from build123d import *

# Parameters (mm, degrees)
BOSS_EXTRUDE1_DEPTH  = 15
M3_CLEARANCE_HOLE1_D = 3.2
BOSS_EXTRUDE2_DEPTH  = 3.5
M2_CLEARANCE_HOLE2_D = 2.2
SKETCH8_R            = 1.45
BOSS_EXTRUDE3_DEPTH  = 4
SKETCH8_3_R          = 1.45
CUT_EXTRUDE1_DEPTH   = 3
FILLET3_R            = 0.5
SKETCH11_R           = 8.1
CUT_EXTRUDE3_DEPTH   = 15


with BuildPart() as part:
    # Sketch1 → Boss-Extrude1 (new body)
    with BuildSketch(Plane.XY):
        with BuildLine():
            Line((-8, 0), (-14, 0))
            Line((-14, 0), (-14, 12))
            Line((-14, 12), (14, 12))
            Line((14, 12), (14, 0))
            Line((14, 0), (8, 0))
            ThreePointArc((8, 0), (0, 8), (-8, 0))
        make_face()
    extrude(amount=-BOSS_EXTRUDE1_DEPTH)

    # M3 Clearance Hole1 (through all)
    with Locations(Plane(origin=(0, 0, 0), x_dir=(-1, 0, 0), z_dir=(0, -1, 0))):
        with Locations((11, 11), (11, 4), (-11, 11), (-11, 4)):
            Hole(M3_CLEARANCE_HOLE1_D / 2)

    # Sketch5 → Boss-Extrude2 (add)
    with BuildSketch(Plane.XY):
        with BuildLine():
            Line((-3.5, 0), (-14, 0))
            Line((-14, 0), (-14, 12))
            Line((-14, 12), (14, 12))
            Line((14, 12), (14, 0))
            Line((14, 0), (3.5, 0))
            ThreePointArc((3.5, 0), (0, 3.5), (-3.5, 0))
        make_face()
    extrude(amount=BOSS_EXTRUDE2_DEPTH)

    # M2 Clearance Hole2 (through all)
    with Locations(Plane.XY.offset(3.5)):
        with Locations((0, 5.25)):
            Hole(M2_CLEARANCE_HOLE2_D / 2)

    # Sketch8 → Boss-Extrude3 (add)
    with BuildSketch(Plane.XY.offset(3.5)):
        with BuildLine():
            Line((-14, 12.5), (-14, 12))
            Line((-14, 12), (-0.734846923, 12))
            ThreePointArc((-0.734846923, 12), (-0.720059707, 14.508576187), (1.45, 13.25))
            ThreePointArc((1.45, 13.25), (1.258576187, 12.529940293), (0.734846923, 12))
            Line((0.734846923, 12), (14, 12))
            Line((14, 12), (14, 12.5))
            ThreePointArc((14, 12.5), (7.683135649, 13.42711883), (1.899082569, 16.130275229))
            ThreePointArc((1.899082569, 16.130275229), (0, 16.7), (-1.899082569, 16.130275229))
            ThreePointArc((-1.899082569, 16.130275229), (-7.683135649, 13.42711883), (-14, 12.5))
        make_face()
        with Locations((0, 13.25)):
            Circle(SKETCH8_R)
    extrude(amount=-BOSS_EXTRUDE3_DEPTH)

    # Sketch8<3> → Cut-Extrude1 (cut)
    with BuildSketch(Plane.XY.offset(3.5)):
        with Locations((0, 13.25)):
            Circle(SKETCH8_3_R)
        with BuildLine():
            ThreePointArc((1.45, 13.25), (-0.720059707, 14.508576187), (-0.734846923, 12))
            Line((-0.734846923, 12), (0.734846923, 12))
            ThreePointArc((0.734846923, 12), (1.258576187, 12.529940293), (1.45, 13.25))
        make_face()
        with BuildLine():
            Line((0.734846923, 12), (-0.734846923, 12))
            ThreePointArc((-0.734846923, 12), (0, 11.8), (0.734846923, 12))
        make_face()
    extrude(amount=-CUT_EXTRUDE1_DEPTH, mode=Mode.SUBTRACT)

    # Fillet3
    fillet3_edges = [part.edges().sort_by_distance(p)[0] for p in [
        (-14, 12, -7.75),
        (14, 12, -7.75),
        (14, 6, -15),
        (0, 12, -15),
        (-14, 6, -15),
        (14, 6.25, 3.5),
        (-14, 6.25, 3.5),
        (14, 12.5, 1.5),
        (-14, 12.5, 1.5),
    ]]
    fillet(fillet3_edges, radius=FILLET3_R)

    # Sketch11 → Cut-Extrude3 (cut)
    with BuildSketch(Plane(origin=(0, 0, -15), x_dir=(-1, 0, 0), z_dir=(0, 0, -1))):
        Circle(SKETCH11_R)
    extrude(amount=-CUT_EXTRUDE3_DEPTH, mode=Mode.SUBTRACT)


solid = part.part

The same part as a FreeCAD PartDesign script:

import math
import FreeCAD as App
import Part
import Sketcher
from FreeCAD import Vector
Q = App.Units.Quantity


def edges_at(feature, points):
    """Names of the edges that pass closest to the given points."""
    edges = feature.Shape.Edges
    near = lambda p: min(range(len(edges)), key=lambda i: edges[i].distToShape(Part.Vertex(*p))[0])
    return sorted({f"Edge{near(p) + 1}" for p in points})

doc = App.newDocument("Part")
params = doc.addObject("Spreadsheet::Sheet", "Params")
for row, (alias, value) in enumerate([
    ("sketch1_radius", "8 mm"),
    ("sketch1_width", "6 mm"),
    ("sketch1_height", "12 mm"),
    ("pad1_length", "15 mm"),
    ("sketch2_diameter", "3.2 mm"),
    ("hole_diameter", "3.2 mm"),
    ("sketch3_radius", "3.5 mm"),
    ("sketch3_width", "28 mm"),
    ("sketch3_height", "12 mm"),
    ("pad2_length", "3.5 mm"),
    ("sketch4_diameter", "2.2 mm"),
    ("hole2_diameter", "2.2 mm"),
    ("sketch5_radius", "1.45 mm"),
    ("sketch5_radius2", "3.45 mm"),
    ("sketch5_height", "0.5 mm"),
    ("pad3_length", "4 mm"),
    ("sketch6_radius", "1.45 mm"),
    ("pocket1_length", "3 mm"),
    ("fillet_radius", "0.5 mm"),
    ("sketch7_diameter", "16.2 mm"),
    ("pocket2_length", "15 mm"),
], start=1):
    params.set(f"A{row}", alias)
    params.set(f"B{row}", "=" + value)
    params.setAlias(f"B{row}", alias)

body = doc.addObject("PartDesign::Body", "Body")

sketch1 = body.newObject("Sketcher::SketchObject", "Sketch")
sketch1.AttachmentSupport = (doc.getObject("XY_Plane"), [""])
sketch1.MapMode = "FlatFace"
sketch1.addGeometry(Part.LineSegment(Vector(-14, 0, 0), Vector(-8, 0, 0)), False)
sketch1.addGeometry(Part.ArcOfCircle(Part.Circle(Vector(0, 0, 0), Vector(0, 0, 1), 8), math.radians(0), math.radians(180)), False)
sketch1.addGeometry(Part.LineSegment(Vector(8, 0, 0), Vector(14, 0, 0)), False)
sketch1.addGeometry(Part.LineSegment(Vector(14, 0, 0), Vector(14, 12, 0)), False)
sketch1.addGeometry(Part.LineSegment(Vector(14, 12, 0), Vector(-14, 12, 0)), False)
sketch1.addGeometry(Part.LineSegment(Vector(-14, 12, 0), Vector(-14, 0, 0)), False)
sketch1.addConstraint(Sketcher.Constraint("Coincident", 0, 2, 1, 2))
sketch1.addConstraint(Sketcher.Constraint("Coincident", 1, 1, 2, 1))
sketch1.addConstraint(Sketcher.Constraint("Coincident", 2, 2, 3, 1))
sketch1.addConstraint(Sketcher.Constraint("Coincident", 3, 2, 4, 1))
sketch1.addConstraint(Sketcher.Constraint("Coincident", 4, 2, 5, 1))
sketch1.addConstraint(Sketcher.Constraint("Coincident", 5, 2, 0, 1))
sketch1.addConstraint(Sketcher.Constraint("Horizontal", 0))
sketch1.addConstraint(Sketcher.Constraint("Horizontal", 2))
sketch1.addConstraint(Sketcher.Constraint("Vertical", 3))
sketch1.addConstraint(Sketcher.Constraint("Horizontal", 4))
sketch1.addConstraint(Sketcher.Constraint("Vertical", 5))
sketch1.addConstraint(Sketcher.Constraint("Coincident", 1, 3, -1, 1))
sketch1.addConstraint(Sketcher.Constraint("Symmetric", 2, 2, 5, 2, -1, 1))
sketch1.addConstraint(Sketcher.Constraint("PointOnObject", 0, 2, -1))
sketch1.addConstraint(Sketcher.Constraint("Radius", 1, Q("8 mm")))
sketch1.addConstraint(Sketcher.Constraint("DistanceX", 0, 1, 0, 2, Q("6 mm")))
sketch1.addConstraint(Sketcher.Constraint("DistanceY", 3, 1, 3, 2, Q("12 mm")))
sketch1.setExpression("Constraints[14]", "Params.sketch1_radius")
sketch1.setExpression("Constraints[15]", "Params.sketch1_width")
sketch1.setExpression("Constraints[16]", "Params.sketch1_height")
pad1 = body.newObject("PartDesign::Pad", "Pad")
pad1.Profile = sketch1
pad1.setExpression("Length", "Params.pad1_length")
pad1.Reversed = True

sketch2 = body.newObject("Sketcher::SketchObject", "Sketch001")
sketch2.AttachmentSupport = (doc.getObject("XZ_Plane"), [""])
sketch2.MapMode = "FlatFace"
sketch2.addGeometry(Part.Circle(Vector(-11, -11, 0), Vector(0, 0, 1), 1.6), False)
sketch2.addGeometry(Part.Circle(Vector(-11, -4, 0), Vector(0, 0, 1), 1.6), False)
sketch2.addGeometry(Part.Circle(Vector(11, -11, 0), Vector(0, 0, 1), 1.6), False)
sketch2.addGeometry(Part.Circle(Vector(11, -4, 0), Vector(0, 0, 1), 1.6), False)
sketch2.addConstraint(Sketcher.Constraint("Equal", 0, 1))
sketch2.addConstraint(Sketcher.Constraint("Equal", 1, 2))
sketch2.addConstraint(Sketcher.Constraint("Equal", 2, 3))
sketch2.addConstraint(Sketcher.Constraint("Symmetric", 0, 3, 2, 3, -2))
sketch2.addConstraint(Sketcher.Constraint("Symmetric", 1, 3, 3, 3, -2))
sketch2.addConstraint(Sketcher.Constraint("Vertical", 0, 3, 1, 3))
sketch2.addConstraint(Sketcher.Constraint("Diameter", 0, Q("3.2 mm")))
sketch2.addConstraint(Sketcher.Constraint("DistanceX", 0, 3, -1, 1, Q("11 mm")))
sketch2.addConstraint(Sketcher.Constraint("DistanceY", 0, 3, -1, 1, Q("11 mm")))
sketch2.addConstraint(Sketcher.Constraint("DistanceY", 1, 3, -1, 1, Q("4 mm")))
sketch2.setExpression("Constraints[6]", "Params.sketch2_diameter")
doc.recompute()
hole = body.newObject("PartDesign::Hole", "Hole")
hole.Profile = sketch2
hole.ThreadType = "None"
hole.setExpression("Diameter", "Params.hole_diameter")
hole.DepthType = "ThroughAll"

sketch3 = body.newObject("Sketcher::SketchObject", "Sketch002")
sketch3.AttachmentSupport = (doc.getObject("XY_Plane"), [""])
sketch3.MapMode = "FlatFace"
sketch3.addGeometry(Part.LineSegment(Vector(-14, 0, 0), Vector(-3.5, 0, 0)), False)
sketch3.addGeometry(Part.ArcOfCircle(Part.Circle(Vector(0, 0, 0), Vector(0, 0, 1), 3.5), math.radians(0), math.radians(180)), False)
sketch3.addGeometry(Part.LineSegment(Vector(3.5, 0, 0), Vector(14, 0, 0)), False)
sketch3.addGeometry(Part.LineSegment(Vector(14, 0, 0), Vector(14, 12, 0)), False)
sketch3.addGeometry(Part.LineSegment(Vector(14, 12, 0), Vector(-14, 12, 0)), False)
sketch3.addGeometry(Part.LineSegment(Vector(-14, 12, 0), Vector(-14, 0, 0)), False)
sketch3.addConstraint(Sketcher.Constraint("Coincident", 0, 2, 1, 2))
sketch3.addConstraint(Sketcher.Constraint("Coincident", 1, 1, 2, 1))
sketch3.addConstraint(Sketcher.Constraint("Coincident", 2, 2, 3, 1))
sketch3.addConstraint(Sketcher.Constraint("Coincident", 3, 2, 4, 1))
sketch3.addConstraint(Sketcher.Constraint("Coincident", 4, 2, 5, 1))
sketch3.addConstraint(Sketcher.Constraint("Coincident", 5, 2, 0, 1))
sketch3.addConstraint(Sketcher.Constraint("Horizontal", 0))
sketch3.addConstraint(Sketcher.Constraint("Horizontal", 2))
sketch3.addConstraint(Sketcher.Constraint("Vertical", 3))
sketch3.addConstraint(Sketcher.Constraint("Horizontal", 4))
sketch3.addConstraint(Sketcher.Constraint("Vertical", 5))
sketch3.addConstraint(Sketcher.Constraint("Coincident", 1, 3, -1, 1))
sketch3.addConstraint(Sketcher.Constraint("Symmetric", 2, 2, 5, 2, -1, 1))
sketch3.addConstraint(Sketcher.Constraint("PointOnObject", 0, 2, -1))
sketch3.addConstraint(Sketcher.Constraint("Radius", 1, Q("3.5 mm")))
sketch3.addConstraint(Sketcher.Constraint("DistanceX", 4, 2, 4, 1, Q("28 mm")))
sketch3.addConstraint(Sketcher.Constraint("DistanceY", 3, 1, 3, 2, Q("12 mm")))
sketch3.setExpression("Constraints[14]", "Params.sketch3_radius")
sketch3.setExpression("Constraints[15]", "Params.sketch3_width")
sketch3.setExpression("Constraints[16]", "Params.sketch3_height")
pad2 = body.newObject("PartDesign::Pad", "Pad001")
pad2.Profile = sketch3
pad2.setExpression("Length", "Params.pad2_length")

sketch4 = body.newObject("Sketcher::SketchObject", "Sketch003")
sketch4.AttachmentSupport = (doc.getObject("XY_Plane"), [""])
sketch4.MapMode = "FlatFace"
sketch4.AttachmentOffset = App.Placement(Vector(0, 0, 3.5), App.Rotation())
sketch4.addGeometry(Part.Circle(Vector(0, 5.2, 0), Vector(0, 0, 1), 1.1), False)
sketch4.addConstraint(Sketcher.Constraint("PointOnObject", 0, 3, -2))
sketch4.addConstraint(Sketcher.Constraint("Diameter", 0, Q("2.2 mm")))
sketch4.addConstraint(Sketcher.Constraint("DistanceY", -1, 1, 0, 3, Q("5.25 mm")))
sketch4.setExpression("Constraints[1]", "Params.sketch4_diameter")
doc.recompute()
hole2 = body.newObject("PartDesign::Hole", "Hole001")
hole2.Profile = sketch4
hole2.ThreadType = "None"
hole2.setExpression("Diameter", "Params.hole2_diameter")
hole2.DepthType = "ThroughAll"

sketch5 = body.newObject("Sketcher::SketchObject", "Sketch004")
sketch5.AttachmentSupport = (doc.getObject("XY_Plane"), [""])
sketch5.MapMode = "FlatFace"
sketch5.AttachmentOffset = App.Placement(Vector(0, 0, 3.5), App.Rotation())
sketch5.addGeometry(Part.LineSegment(Vector(-14, 12.5, 0), Vector(-14, 12, 0)), False)
sketch5.addGeometry(Part.LineSegment(Vector(-14, 12, 0), Vector(-0.7, 12, 0)), False)
sketch5.addGeometry(Part.ArcOfCircle(Part.Circle(Vector(0, 13.2, 0), Vector(0, 0, 1), 1.4), math.radians(-120), math.radians(-60)), False)
sketch5.addGeometry(Part.LineSegment(Vector(0.7, 12, 0), Vector(14, 12, 0)), False)
sketch5.addGeometry(Part.LineSegment(Vector(14, 12, 0), Vector(14, 12.5, 0)), False)
sketch5.addGeometry(Part.ArcOfCircle(Part.Circle(Vector(14, 34.5, 0), Vector(0, 0, 1), 22), math.radians(-123), math.radians(-90)), False)
sketch5.addGeometry(Part.ArcOfCircle(Part.Circle(Vector(0, 13.3, 0), Vector(0, 0, 1), 3.4), math.radians(57), math.radians(123)), False)
sketch5.addGeometry(Part.ArcOfCircle(Part.Circle(Vector(-14, 34.5, 0), Vector(0, 0, 1), 22), math.radians(-90), math.radians(-57)), False)
sketch5.addConstraint(Sketcher.Constraint("Coincident", 0, 2, 1, 1))
sketch5.addConstraint(Sketcher.Constraint("Coincident", 1, 2, 2, 1))
sketch5.addConstraint(Sketcher.Constraint("Coincident", 2, 2, 3, 1))
sketch5.addConstraint(Sketcher.Constraint("Coincident", 3, 2, 4, 1))
sketch5.addConstraint(Sketcher.Constraint("Coincident", 4, 2, 5, 2))
sketch5.addConstraint(Sketcher.Constraint("Tangent", 5, 1, 6, 1))
sketch5.addConstraint(Sketcher.Constraint("Tangent", 6, 2, 7, 2))
sketch5.addConstraint(Sketcher.Constraint("Coincident", 7, 1, 0, 1))
sketch5.addConstraint(Sketcher.Constraint("Vertical", 0))
sketch5.addConstraint(Sketcher.Constraint("Horizontal", 1))
sketch5.addConstraint(Sketcher.Constraint("Horizontal", 3))
sketch5.addConstraint(Sketcher.Constraint("Vertical", 4))
sketch5.addConstraint(Sketcher.Constraint("Coincident", 6, 3, 2, 3))
sketch5.addConstraint(Sketcher.Constraint("Equal", 5, 7))
sketch5.addConstraint(Sketcher.Constraint("Symmetric", 5, 3, 7, 3, -2))
sketch5.addConstraint(Sketcher.Constraint("Symmetric", 0, 2, 3, 2, -2))
sketch5.addConstraint(Sketcher.Constraint("Vertical", 7, 3, 0, 2))
sketch5.addConstraint(Sketcher.Constraint("Radius", 2, Q("1.45 mm")))
sketch5.addConstraint(Sketcher.Constraint("Radius", 6, Q("3.45 mm")))
sketch5.addConstraint(Sketcher.Constraint("DistanceY", 0, 2, 0, 1, Q("0.5 mm")))
sketch5.addConstraint(Sketcher.Constraint("DistanceX", -1, 1, 5, 3, Q("14 mm")))
sketch5.addConstraint(Sketcher.Constraint("DistanceY", -1, 1, 0, 2, Q("12 mm")))
sketch5.addConstraint(Sketcher.Constraint("DistanceY", -1, 1, 2, 3, Q("13.25 mm")))
sketch5.setExpression("Constraints[17]", "Params.sketch5_radius")
sketch5.setExpression("Constraints[18]", "Params.sketch5_radius2")
sketch5.setExpression("Constraints[19]", "Params.sketch5_height")
pad3 = body.newObject("PartDesign::Pad", "Pad002")
pad3.Profile = sketch5
pad3.setExpression("Length", "Params.pad3_length")
pad3.Reversed = True

sketch6 = body.newObject("Sketcher::SketchObject", "Sketch005")
sketch6.AttachmentSupport = (doc.getObject("XY_Plane"), [""])
sketch6.MapMode = "FlatFace"
sketch6.AttachmentOffset = App.Placement(Vector(0, 0, 3.5), App.Rotation())
sketch6.addGeometry(Part.ArcOfCircle(Part.Circle(Vector(0, 13.2, 0), Vector(0, 0, 1), 1.4), math.radians(-60), math.radians(240)), False)
sketch6.addGeometry(Part.ArcOfCircle(Part.Circle(Vector(0, 13.3, 0), Vector(0, 0, 1), 1.5), math.radians(-120), math.radians(-60)), False)
sketch6.addConstraint(Sketcher.Constraint("Tangent", 0, 1, 1, 2))
sketch6.addConstraint(Sketcher.Constraint("Coincident", 1, 1, 0, 2))
sketch6.addConstraint(Sketcher.Constraint("Symmetric", 0, 1, 1, 1, -2))
sketch6.addConstraint(Sketcher.Constraint("Radius", 0, Q("1.45 mm")))
sketch6.addConstraint(Sketcher.Constraint("DistanceY", -1, 1, 0, 1, Q("12 mm")))
sketch6.addConstraint(Sketcher.Constraint("DistanceY", -1, 1, 0, 3, Q("13.25 mm")))
sketch6.setExpression("Constraints[3]", "Params.sketch6_radius")
pocket1 = body.newObject("PartDesign::Pocket", "Pocket")
pocket1.Profile = sketch6
pocket1.setExpression("Length", "Params.pocket1_length")
doc.recompute()

fillet = body.newObject("PartDesign::Fillet", "Fillet")
fillet.Base = (pocket1, edges_at(pocket1, [
    (-14, 12, -7.75),
    (14, 12, -7.75),
    (14, 6, -15),
    (0, 12, -15),
    (-14, 6, -15),
    (14, 6.25, 3.5),
    (-14, 6.25, 3.5),
    (14, 12.5, 1.5),
    (-14, 12.5, 1.5),
]))
fillet.setExpression("Radius", "Params.fillet_radius")

sketch7 = body.newObject("Sketcher::SketchObject", "Sketch006")
sketch7.AttachmentSupport = (doc.getObject("XY_Plane"), [""])
sketch7.MapMode = "FlatFace"
sketch7.AttachmentOffset = App.Placement(Vector(0, 0, -15), App.Rotation())
sketch7.addGeometry(Part.Circle(Vector(0, 0, 0), Vector(0, 0, 1), 8), False)
sketch7.addConstraint(Sketcher.Constraint("Coincident", 0, 3, -1, 1))
sketch7.addConstraint(Sketcher.Constraint("Diameter", 0, Q("16.2 mm")))
sketch7.setExpression("Constraints[1]", "Params.sketch7_diameter")
pocket2 = body.newObject("PartDesign::Pocket", "Pocket001")
pocket2.Profile = sketch7
pocket2.setExpression("Length", "Params.pocket2_length")
pocket2.Reversed = True

doc.recompute()
